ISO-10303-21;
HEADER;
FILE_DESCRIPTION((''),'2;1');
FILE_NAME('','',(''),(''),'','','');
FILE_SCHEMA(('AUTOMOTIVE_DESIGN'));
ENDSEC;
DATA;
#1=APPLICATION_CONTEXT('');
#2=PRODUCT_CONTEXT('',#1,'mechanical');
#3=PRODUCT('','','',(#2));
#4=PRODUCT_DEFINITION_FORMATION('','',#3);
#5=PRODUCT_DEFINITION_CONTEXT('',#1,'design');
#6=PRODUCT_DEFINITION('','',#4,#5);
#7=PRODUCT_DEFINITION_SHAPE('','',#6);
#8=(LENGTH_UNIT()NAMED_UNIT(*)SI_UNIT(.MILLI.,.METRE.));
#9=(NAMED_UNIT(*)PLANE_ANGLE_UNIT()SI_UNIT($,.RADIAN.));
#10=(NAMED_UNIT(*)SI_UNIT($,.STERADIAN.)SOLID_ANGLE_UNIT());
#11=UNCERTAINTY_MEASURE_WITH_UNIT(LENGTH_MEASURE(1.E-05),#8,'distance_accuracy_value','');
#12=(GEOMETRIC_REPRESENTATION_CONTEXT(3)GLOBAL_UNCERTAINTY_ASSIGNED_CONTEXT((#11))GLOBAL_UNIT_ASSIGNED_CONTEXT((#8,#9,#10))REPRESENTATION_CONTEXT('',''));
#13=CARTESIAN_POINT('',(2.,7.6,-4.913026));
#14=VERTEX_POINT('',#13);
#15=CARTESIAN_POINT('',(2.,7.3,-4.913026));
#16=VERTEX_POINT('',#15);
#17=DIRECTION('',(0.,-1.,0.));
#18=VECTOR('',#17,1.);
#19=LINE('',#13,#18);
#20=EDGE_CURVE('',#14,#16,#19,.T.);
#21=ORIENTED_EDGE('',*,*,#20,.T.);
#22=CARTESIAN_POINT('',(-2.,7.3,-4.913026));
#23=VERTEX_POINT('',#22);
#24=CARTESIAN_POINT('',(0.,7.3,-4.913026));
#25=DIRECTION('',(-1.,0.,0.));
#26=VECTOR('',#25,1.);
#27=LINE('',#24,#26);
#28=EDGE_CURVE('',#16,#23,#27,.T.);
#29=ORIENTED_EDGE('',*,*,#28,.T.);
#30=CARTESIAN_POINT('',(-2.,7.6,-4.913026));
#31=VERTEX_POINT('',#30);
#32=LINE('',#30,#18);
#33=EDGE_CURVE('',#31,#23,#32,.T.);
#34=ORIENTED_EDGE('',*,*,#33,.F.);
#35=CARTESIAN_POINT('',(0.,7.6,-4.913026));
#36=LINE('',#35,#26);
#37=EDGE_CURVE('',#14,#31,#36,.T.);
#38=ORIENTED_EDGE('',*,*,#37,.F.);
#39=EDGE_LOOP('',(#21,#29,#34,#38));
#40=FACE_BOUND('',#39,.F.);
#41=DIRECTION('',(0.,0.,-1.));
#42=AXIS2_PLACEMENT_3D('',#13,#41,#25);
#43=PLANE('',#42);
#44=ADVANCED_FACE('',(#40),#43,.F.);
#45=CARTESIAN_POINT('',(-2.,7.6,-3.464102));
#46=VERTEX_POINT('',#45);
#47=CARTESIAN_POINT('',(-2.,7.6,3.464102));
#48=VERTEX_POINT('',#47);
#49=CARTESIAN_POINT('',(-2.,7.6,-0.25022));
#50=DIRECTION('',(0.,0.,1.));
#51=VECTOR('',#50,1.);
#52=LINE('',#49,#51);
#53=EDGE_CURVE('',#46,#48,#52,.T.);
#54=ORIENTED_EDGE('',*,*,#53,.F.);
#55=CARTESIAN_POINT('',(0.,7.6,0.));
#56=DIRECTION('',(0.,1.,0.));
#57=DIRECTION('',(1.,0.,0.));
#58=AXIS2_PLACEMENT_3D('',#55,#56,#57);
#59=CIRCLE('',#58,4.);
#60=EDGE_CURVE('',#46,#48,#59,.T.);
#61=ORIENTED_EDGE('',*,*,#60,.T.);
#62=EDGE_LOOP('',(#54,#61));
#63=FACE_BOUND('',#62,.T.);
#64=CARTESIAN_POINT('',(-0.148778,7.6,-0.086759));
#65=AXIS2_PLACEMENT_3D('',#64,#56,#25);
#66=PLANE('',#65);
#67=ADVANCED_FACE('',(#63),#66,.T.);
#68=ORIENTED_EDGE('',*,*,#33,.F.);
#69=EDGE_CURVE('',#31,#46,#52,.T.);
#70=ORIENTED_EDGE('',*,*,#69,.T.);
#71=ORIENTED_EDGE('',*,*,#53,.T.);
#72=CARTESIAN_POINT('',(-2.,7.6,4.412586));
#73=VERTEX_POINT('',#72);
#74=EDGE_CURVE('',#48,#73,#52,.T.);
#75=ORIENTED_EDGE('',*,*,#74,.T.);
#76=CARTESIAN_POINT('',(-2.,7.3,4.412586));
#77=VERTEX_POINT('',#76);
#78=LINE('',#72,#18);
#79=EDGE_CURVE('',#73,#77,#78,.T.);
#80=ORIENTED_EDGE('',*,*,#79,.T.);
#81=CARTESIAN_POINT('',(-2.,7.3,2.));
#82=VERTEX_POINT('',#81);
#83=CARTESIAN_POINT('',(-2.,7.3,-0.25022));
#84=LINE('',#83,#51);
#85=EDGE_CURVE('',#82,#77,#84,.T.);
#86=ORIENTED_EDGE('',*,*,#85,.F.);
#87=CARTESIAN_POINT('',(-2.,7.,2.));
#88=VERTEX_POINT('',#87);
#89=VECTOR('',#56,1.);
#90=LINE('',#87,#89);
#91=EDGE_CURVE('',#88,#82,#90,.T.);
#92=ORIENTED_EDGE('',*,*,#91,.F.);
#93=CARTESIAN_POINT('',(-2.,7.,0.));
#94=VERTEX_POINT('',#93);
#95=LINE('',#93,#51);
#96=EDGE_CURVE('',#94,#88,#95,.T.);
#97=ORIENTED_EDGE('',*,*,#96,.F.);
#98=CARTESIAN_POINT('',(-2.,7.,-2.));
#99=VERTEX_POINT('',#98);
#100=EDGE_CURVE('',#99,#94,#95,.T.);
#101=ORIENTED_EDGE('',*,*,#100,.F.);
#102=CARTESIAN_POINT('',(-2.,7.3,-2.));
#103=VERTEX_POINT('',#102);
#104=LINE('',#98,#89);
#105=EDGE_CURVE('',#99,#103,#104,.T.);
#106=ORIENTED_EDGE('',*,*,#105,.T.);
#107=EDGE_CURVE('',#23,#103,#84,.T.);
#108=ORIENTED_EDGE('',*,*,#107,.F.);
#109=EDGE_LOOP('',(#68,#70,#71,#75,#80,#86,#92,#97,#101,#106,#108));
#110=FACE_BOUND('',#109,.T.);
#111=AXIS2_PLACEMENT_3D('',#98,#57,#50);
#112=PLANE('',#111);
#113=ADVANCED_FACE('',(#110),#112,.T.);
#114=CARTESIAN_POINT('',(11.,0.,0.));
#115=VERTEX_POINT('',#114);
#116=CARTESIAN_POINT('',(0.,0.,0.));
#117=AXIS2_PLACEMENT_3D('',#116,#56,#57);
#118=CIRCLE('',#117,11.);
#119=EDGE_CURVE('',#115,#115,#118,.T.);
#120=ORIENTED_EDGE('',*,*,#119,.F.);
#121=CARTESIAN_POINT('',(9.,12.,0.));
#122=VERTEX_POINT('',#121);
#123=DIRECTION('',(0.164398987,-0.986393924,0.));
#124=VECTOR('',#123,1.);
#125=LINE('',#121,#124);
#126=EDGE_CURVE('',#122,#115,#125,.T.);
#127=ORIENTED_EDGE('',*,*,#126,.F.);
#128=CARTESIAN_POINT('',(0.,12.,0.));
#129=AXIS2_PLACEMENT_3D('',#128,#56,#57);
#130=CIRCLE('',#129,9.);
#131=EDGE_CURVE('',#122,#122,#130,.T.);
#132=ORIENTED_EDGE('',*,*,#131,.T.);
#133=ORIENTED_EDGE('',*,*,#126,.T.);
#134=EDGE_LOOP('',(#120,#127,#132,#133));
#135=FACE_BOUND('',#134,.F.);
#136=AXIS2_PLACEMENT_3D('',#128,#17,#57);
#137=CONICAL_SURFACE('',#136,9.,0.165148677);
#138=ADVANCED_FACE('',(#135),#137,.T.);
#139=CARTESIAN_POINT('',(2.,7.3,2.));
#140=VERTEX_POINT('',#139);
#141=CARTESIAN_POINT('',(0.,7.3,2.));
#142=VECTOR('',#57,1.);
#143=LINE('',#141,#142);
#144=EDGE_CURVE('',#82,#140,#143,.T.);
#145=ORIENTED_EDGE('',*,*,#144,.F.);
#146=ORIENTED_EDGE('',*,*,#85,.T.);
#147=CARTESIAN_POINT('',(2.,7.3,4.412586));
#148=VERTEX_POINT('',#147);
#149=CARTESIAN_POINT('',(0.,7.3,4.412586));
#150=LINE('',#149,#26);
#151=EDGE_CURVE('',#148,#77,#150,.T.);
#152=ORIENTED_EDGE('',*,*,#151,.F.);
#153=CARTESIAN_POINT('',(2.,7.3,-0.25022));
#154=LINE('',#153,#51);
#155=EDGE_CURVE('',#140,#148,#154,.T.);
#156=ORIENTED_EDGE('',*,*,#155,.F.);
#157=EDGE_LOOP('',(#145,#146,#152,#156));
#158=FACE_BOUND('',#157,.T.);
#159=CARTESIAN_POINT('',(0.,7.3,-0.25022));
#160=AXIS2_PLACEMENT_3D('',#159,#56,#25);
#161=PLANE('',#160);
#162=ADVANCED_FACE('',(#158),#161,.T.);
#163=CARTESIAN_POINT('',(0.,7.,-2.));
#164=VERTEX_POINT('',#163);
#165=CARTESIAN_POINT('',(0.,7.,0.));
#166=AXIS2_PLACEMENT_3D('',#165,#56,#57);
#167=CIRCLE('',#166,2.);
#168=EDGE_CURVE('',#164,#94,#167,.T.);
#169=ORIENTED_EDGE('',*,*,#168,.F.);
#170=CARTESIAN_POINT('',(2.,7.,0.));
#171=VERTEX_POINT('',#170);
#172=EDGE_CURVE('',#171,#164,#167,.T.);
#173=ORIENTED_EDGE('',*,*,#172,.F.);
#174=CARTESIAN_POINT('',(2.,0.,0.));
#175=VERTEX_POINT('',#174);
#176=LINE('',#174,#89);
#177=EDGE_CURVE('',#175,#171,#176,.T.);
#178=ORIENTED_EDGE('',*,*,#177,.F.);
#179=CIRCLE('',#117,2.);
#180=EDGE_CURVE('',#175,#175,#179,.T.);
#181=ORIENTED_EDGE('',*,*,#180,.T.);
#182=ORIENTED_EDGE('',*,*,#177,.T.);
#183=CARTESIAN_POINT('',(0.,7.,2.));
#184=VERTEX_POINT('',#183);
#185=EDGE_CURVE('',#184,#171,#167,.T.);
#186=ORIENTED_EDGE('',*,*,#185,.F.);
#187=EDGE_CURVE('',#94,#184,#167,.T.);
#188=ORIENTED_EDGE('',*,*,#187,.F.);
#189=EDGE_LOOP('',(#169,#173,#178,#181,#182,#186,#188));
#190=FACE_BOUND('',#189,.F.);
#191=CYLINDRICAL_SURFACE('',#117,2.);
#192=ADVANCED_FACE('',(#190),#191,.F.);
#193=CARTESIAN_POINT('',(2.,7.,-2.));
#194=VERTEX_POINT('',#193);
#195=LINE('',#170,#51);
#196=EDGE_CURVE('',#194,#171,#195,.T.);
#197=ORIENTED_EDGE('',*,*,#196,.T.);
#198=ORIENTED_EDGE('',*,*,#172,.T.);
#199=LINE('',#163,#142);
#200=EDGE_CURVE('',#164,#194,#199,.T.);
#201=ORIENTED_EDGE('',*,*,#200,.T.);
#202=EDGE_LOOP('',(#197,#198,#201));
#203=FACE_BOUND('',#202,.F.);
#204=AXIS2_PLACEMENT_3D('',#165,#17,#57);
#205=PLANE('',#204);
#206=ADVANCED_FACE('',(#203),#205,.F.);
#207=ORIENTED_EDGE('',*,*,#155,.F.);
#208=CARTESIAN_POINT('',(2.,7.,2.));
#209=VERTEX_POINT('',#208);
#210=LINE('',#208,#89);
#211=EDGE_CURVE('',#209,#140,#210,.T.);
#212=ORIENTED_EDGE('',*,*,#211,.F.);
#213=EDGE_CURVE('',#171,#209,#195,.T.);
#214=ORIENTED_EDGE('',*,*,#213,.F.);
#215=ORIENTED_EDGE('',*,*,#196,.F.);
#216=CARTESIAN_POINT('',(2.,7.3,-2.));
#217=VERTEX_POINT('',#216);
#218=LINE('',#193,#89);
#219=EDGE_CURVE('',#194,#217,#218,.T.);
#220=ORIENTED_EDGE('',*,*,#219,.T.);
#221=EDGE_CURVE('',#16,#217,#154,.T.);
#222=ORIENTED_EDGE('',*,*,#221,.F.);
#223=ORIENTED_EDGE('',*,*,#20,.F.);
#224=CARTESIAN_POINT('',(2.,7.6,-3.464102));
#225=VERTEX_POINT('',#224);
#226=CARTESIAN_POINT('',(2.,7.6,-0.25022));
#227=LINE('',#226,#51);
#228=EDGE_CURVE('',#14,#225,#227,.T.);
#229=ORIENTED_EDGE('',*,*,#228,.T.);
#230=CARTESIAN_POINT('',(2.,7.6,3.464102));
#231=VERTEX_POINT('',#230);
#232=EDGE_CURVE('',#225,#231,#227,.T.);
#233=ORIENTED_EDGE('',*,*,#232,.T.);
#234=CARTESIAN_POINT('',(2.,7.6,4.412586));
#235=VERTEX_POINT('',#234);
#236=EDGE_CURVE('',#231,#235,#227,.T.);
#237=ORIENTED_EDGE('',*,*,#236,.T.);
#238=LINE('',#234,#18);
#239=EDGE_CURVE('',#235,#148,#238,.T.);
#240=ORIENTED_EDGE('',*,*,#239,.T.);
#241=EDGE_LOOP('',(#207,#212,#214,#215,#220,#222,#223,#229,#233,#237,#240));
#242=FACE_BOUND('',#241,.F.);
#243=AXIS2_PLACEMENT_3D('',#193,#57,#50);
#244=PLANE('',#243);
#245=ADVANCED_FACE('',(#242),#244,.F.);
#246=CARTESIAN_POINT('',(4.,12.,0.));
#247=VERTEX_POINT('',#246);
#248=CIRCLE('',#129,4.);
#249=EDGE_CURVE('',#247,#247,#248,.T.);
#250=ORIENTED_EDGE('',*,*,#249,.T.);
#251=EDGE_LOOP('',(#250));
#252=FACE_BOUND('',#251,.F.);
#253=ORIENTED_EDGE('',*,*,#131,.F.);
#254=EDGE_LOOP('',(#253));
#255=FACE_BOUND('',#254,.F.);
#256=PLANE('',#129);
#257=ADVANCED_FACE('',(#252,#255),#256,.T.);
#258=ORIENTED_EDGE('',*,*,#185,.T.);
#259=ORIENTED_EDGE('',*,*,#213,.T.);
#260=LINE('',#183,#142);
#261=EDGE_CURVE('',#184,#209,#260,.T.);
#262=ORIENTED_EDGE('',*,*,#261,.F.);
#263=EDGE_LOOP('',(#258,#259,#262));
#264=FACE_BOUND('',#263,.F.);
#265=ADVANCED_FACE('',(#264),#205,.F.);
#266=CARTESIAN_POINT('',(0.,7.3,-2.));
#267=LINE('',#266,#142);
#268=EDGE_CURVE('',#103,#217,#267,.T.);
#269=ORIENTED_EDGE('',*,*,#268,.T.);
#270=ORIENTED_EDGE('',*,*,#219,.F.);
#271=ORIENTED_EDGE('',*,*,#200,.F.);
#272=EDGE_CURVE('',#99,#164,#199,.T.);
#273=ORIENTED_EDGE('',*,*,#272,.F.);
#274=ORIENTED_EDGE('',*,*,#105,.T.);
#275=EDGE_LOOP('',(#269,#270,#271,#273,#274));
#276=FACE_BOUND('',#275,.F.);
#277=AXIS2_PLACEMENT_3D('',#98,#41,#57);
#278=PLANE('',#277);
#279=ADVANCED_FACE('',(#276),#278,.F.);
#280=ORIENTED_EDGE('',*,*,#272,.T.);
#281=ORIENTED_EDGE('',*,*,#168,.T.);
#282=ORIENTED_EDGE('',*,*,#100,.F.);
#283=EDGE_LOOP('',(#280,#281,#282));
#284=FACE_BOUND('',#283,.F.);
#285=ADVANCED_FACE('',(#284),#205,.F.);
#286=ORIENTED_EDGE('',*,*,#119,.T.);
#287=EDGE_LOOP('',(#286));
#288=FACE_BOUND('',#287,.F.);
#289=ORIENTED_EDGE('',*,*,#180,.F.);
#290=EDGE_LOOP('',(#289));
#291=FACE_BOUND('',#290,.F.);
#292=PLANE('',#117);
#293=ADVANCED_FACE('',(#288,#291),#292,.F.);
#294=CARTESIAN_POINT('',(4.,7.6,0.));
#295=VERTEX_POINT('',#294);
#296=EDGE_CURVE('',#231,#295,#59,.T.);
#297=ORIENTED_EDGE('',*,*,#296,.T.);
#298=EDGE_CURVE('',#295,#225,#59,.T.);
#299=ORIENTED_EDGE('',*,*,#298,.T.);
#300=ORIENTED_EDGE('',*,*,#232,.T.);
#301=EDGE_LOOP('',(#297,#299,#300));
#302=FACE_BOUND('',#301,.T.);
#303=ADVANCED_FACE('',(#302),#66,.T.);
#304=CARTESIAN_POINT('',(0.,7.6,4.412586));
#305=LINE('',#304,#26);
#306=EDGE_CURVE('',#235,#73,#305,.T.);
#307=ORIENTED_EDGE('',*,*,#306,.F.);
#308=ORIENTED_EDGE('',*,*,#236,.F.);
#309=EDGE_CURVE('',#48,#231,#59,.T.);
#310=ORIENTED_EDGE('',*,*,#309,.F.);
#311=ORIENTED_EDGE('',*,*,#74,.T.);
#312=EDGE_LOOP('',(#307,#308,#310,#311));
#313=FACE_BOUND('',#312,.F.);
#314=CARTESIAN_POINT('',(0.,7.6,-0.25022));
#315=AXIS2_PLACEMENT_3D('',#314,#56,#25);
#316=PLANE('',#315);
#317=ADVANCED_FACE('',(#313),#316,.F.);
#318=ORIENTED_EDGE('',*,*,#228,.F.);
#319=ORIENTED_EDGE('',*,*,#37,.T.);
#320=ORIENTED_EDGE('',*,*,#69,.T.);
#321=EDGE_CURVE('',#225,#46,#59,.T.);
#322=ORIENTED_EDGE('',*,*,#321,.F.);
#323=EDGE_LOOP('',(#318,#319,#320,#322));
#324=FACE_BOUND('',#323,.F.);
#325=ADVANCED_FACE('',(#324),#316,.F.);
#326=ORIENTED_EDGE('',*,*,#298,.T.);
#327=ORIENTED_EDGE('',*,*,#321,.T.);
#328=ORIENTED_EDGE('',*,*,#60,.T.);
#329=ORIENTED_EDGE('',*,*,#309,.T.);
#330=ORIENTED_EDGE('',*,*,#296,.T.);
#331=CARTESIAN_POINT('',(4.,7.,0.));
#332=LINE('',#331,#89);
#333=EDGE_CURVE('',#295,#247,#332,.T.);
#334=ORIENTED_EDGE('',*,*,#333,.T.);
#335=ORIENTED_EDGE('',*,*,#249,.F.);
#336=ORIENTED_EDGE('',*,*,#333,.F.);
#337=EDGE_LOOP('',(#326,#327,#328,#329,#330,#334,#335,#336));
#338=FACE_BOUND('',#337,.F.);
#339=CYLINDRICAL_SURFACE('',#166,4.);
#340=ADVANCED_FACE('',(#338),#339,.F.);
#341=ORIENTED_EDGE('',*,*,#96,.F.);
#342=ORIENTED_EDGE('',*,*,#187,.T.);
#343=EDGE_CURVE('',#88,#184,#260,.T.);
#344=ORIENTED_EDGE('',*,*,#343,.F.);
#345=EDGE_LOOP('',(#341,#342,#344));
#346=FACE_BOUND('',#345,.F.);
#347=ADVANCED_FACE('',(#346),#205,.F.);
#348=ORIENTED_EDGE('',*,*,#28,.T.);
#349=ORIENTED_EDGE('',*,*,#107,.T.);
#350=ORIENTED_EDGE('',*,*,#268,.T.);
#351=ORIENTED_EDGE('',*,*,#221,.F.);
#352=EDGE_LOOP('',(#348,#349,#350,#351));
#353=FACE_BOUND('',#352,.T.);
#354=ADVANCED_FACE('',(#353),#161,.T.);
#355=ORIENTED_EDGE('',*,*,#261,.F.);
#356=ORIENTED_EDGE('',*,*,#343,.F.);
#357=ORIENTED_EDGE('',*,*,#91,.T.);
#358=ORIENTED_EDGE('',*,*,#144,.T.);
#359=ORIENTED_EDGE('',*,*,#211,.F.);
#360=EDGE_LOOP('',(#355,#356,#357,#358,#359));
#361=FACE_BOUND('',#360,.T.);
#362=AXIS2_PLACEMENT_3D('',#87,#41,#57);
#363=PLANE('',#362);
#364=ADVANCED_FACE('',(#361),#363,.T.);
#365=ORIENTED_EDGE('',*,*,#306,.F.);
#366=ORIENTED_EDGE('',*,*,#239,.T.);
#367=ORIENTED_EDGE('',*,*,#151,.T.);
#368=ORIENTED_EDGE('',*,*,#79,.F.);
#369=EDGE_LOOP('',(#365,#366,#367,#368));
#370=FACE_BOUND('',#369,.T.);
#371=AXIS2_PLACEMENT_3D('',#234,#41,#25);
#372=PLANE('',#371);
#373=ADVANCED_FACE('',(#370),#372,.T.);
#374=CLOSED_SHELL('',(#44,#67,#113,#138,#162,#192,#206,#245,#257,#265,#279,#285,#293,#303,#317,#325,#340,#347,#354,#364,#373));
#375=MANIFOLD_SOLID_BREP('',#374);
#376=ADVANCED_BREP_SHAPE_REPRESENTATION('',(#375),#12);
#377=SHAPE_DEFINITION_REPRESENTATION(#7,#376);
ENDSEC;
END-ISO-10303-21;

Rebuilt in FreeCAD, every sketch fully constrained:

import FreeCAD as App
import Part
import Sketcher

V = App.Vector

doc = App.newDocument("Part")
body = doc.addObject("PartDesign::Body", "Body")

sketch1 = body.newObject("Sketcher::SketchObject", "Sketch")
sketch1.AttachmentSupport = (doc.getObject("XY_Plane"), [""])
sketch1.MapMode = "FlatFace"
sketch1.addGeometry([
    Part.LineSegment(V(4, 7, 0), V(2, 7, 0)),
    Part.LineSegment(V(2, 7, 0), V(2, 0, 0)),
    Part.LineSegment(V(2, 0, 0), V(11, 0, 0)),
    Part.LineSegment(V(11, 0, 0), V(9, 12, 0)),
    Part.LineSegment(V(9, 12, 0), V(4, 12, 0)),
    Part.LineSegment(V(4, 12, 0), V(4, 7, 0)),
], False)
sketch1.addConstraint([
    Sketcher.Constraint("Coincident", 0, 2, 1, 1),
    Sketcher.Constraint("Coincident", 1, 2, 2, 1),
    Sketcher.Constraint("Coincident", 2, 2, 3, 1),
    Sketcher.Constraint("Coincident", 3, 2, 4, 1),
    Sketcher.Constraint("Coincident", 4, 2, 5, 1),
    Sketcher.Constraint("Coincident", 5, 2, 0, 1),
    Sketcher.Constraint("Horizontal", 0),
    Sketcher.Constraint("Vertical", 1),
    Sketcher.Constraint("Horizontal", 2),
    Sketcher.Constraint("Horizontal", 4),
    Sketcher.Constraint("Vertical", 5),
    Sketcher.Constraint("PointOnObject", 1, 2, -1),
    Sketcher.Constraint("Equal", 4, 5),
    Sketcher.Constraint("DistanceX", 0, 2, 0, 1, 2.0),
    Sketcher.Constraint("DistanceX", 2, 1, 2, 2, 9.0),
    Sketcher.Constraint("DistanceX", 4, 2, 4, 1, 5.0),
    Sketcher.Constraint("DistanceY", 1, 2, 1, 1, 7.0),
    Sketcher.Constraint("DistanceX", -1, 1, 0, 2, 2.0),
])
revolution = body.newObject("PartDesign::Revolution", "Revolution")
revolution.Profile = sketch1
revolution.ReferenceAxis = (sketch1, ["V_Axis"])
revolution.Angle = 360

sketch2 = body.newObject("Sketcher::SketchObject", "Sketch001")
sketch2.AttachmentSupport = (doc.getObject("XZ_Plane"), [""])
sketch2.MapMode = "FlatFace"
sketch2.AttachmentOffset = App.Placement(V(0, 0, -7), App.Rotation())
sketch2.addGeometry([
    Part.LineSegment(V(4, 5, 0), V(4, -5, 0)),
    Part.LineSegment(V(4, -5, 0), V(-5, -5, 0)),
    Part.LineSegment(V(-5, -5, 0), V(-5, 5, 0)),
    Part.LineSegment(V(-5, 5, 0), V(4, 5, 0)),
], False)
sketch2.addConstraint([
    Sketcher.Constraint("Coincident", 0, 2, 1, 1),
    Sketcher.Constraint("Coincident", 1, 2, 2, 1),
    Sketcher.Constraint("Coincident", 2, 2, 3, 1),
    Sketcher.Constraint("Coincident", 3, 2, 0, 1),
    Sketcher.Constraint("Vertical", 0),
    Sketcher.Constraint("Horizontal", 1),
    Sketcher.Constraint("Vertical", 2),
    Sketcher.Constraint("Horizontal", 3),
    Sketcher.Constraint("DistanceX", 1, 2, 1, 1, 9.016991),
    Sketcher.Constraint("DistanceY", 0, 2, 0, 1, 9.88356),
    Sketcher.Constraint("DistanceY", 0, 2, -1, 1, 5.028539),
    Sketcher.Constraint("DistanceX", -1, 1, 0, 2, 4.359718),
])
pad1 = body.newObject("PartDesign::Pad", "Pad")
pad1.Profile = sketch2
pad1.Length = 0.6
pad1.Reversed = True

sketch3 = body.newObject("Sketcher::SketchObject", "Sketch002")
sketch3.AttachmentSupport = (doc.getObject("XZ_Plane"), [""])
sketch3.MapMode = "FlatFace"
sketch3.AttachmentOffset = App.Placement(V(0, 0, -7.6), App.Rotation())
sketch3.addGeometry([
    Part.LineSegment(V(2, 4.4, 0), V(2, -4.9, 0)),
    Part.LineSegment(V(2, -4.9, 0), V(-2, -4.9, 0)),
    Part.LineSegment(V(-2, -4.9, 0), V(-2, 4.4, 0)),
    Part.LineSegment(V(-2, 4.4, 0), V(2, 4.4, 0)),
], False)
sketch3.addConstraint([
    Sketcher.Constraint("Coincident", 0, 2, 1, 1),
    Sketcher.Constraint("Coincident", 1, 2, 2, 1),
    Sketcher.Constraint("Coincident", 2, 2, 3, 1),
    Sketcher.Constraint("Coincident", 3, 2, 0, 1),
    Sketcher.Constraint("Vertical", 0),
    Sketcher.Constraint("Horizontal", 1),
    Sketcher.Constraint("Vertical", 2),
    Sketcher.Constraint("Horizontal", 3),
    Sketcher.Constraint("DistanceX", 1, 2, 1, 1, 4.0),
    Sketcher.Constraint("DistanceX", -1, 1, 0, 2, 2.0),
    Sketcher.Constraint("DistanceY", 0, 2, 0, 1, 9.325613),
    Sketcher.Constraint("DistanceY", 0, 2, -1, 1, 4.913026),
])
pocket1 = body.newObject("PartDesign::Pocket", "Pocket")
pocket1.Profile = sketch3
pocket1.Length = 0.3
pocket1.Reversed = True

sketch4 = body.newObject("Sketcher::SketchObject", "Sketch003")
sketch4.AttachmentSupport = (doc.getObject("XZ_Plane"), [""])
sketch4.MapMode = "FlatFace"
sketch4.AttachmentOffset = App.Placement(V(0, 0, -7), App.Rotation())
sketch4.addGeometry([
    Part.LineSegment(V(-2, 2, 0), V(-2, -2, 0)),
    Part.LineSegment(V(-2, -2, 0), V(2, -2, 0)),
    Part.LineSegment(V(2, -2, 0), V(2, 2, 0)),
    Part.LineSegment(V(2, 2, 0), V(-2, 2, 0)),
], False)
sketch4.addConstraint([
    Sketcher.Constraint("Coincident", 0, 2, 1, 1),
    Sketcher.Constraint("Coincident", 1, 2, 2, 1),
    Sketcher.Constraint("Coincident", 2, 2, 3, 1),
    Sketcher.Constraint("Coincident", 3, 2, 0, 1),
    Sketcher.Constraint("Vertical", 0),
    Sketcher.Constraint("Horizontal", 1),
    Sketcher.Constraint("Vertical", 2),
    Sketcher.Constraint("Horizontal", 3),
    Sketcher.Constraint("Symmetric", 0, 2, 2, 2, -1, 1),
    Sketcher.Constraint("Equal", 3, 0),
    Sketcher.Constraint("DistanceX", 1, 1, 1, 2, 4.0),
])
pocket2 = body.newObject("PartDesign::Pocket", "Pocket001")
pocket2.Profile = sketch4
pocket2.Length = 0.3

doc.recompute()
